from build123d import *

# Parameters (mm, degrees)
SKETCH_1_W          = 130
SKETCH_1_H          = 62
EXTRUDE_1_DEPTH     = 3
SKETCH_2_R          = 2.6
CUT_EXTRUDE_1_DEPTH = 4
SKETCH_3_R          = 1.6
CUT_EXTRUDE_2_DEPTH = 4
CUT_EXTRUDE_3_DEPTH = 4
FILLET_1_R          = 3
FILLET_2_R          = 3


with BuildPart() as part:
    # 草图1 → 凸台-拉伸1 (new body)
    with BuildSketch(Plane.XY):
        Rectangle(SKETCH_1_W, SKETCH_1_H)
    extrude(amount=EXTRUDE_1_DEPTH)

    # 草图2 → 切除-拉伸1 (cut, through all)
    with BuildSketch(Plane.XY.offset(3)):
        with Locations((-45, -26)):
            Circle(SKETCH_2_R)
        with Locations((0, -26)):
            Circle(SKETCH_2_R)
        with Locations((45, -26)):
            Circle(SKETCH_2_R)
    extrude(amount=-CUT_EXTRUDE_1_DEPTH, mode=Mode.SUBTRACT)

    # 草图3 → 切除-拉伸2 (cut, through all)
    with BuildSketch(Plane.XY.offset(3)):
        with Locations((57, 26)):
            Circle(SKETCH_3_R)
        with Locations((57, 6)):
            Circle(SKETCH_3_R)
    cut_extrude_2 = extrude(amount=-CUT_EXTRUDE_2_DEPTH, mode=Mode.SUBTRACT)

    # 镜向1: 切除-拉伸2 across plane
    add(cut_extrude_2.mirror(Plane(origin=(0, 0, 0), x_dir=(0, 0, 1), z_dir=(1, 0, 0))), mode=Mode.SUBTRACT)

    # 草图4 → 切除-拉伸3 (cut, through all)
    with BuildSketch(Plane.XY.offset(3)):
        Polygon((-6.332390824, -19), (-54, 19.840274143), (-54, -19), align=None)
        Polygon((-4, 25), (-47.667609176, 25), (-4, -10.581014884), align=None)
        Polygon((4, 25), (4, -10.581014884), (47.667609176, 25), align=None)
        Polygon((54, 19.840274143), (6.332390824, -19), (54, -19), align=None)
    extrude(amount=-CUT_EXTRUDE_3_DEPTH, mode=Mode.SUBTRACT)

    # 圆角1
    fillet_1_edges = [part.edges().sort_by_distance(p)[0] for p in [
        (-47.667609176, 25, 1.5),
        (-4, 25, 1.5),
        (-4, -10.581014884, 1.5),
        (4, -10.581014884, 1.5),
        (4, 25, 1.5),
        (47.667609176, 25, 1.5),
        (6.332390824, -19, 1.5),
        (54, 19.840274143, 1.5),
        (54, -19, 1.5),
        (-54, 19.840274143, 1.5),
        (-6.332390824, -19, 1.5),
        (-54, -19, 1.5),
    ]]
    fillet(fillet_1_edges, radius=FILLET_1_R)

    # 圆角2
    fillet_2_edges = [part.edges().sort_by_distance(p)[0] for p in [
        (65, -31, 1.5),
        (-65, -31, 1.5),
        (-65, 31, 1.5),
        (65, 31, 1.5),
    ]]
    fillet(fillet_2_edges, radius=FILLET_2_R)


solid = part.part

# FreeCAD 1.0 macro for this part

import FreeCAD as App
import Part
import Sketcher


def edges_at(feature, points):
    """Names of the edges that pass closest to the given points."""
    edges = feature.Shape.Edges
    near = lambda p: min(range(len(edges)), key=lambda i: edges[i].distToShape(Part.Vertex(*p))[0])
    return sorted({f"Edge{near(p) + 1}" for p in points})

doc = App.newDocument("Part")
params = doc.addObject("Spreadsheet::Sheet", "Params")
for row, (alias, value) in enumerate([
    ("sketch1_width", "130 mm"),
    ("sketch1_height", "62 mm"),
    ("pad1_length", "3 mm"),
    ("sketch2_diameter", "5.2 mm"),
    ("sketch3_diameter", "3.2 mm"),
    ("fillet_radius", "3 mm"),
    ("fillet2_radius", "3 mm"),
], start=1):
    params.set(f"A{row}", alias)
    params.set(f"B{row}", "=" + value)
    params.setAlias(f"B{row}", alias)

body = doc.addObject("PartDesign::Body", "Body")

sketch1 = body.newObject("Sketcher::SketchObject", "Sketch")
sketch1.AttachmentSupport = (doc.getObject("XY_Plane"), [""])
sketch1.MapMode = "FlatFace"
sketch1.addGeometry(Part.LineSegment(App.Vector(-65, 31, 0), App.Vector(-65, -31, 0)), False)
sketch1.addGeometry(Part.LineSegment(App.Vector(-65, -31, 0), App.Vector(65, -31, 0)), False)
sketch1.addGeometry(Part.LineSegment(App.Vector(65, -31, 0), App.Vector(65, 31, 0)), False)
sketch1.addGeometry(Part.LineSegment(App.Vector(65, 31, 0), App.Vector(-65, 31, 0)), False)
sketch1.addConstraint(Sketcher.Constraint("Coincident", 0, 2, 1, 1))
sketch1.addConstraint(Sketcher.Constraint("Coincident", 1, 2, 2, 1))
sketch1.addConstraint(Sketcher.Constraint("Coincident", 2, 2, 3, 1))
sketch1.addConstraint(Sketcher.Constraint("Coincident", 3, 2, 0, 1))
sketch1.addConstraint(Sketcher.Constraint("Vertical", 0))
sketch1.addConstraint(Sketcher.Constraint("Horizontal", 1))
sketch1.addConstraint(Sketcher.Constraint("Vertical", 2))
sketch1.addConstraint(Sketcher.Constraint("Horizontal", 3))
sketch1.addConstraint(Sketcher.Constraint("Symmetric", 0, 2, 2, 2, -1, 1))
sketch1.addConstraint(Sketcher.Constraint("DistanceX", 1, 1, 1, 2, 130.0))
sketch1.addConstraint(Sketcher.Constraint("DistanceY", 0, 2, 0, 1, 62.0))
sketch1.setExpression("Constraints[9]", "Params.sketch1_width")
sketch1.setExpression("Constraints[10]", "Params.sketch1_height")
pad1 = body.newObject("PartDesign::Pad", "Pad")
pad1.Profile = sketch1
pad1.setExpression("Length", "Params.pad1_length")

sketch2 = body.newObject("Sketcher::SketchObject", "Sketch001")
sketch2.AttachmentSupport = (doc.getObject("XY_Plane"), [""])
sketch2.MapMode = "FlatFace"
sketch2.AttachmentOffset = App.Placement(App.Vector(0, 0, 3), App.Rotation())
sketch2.addGeometry(Part.Circle(App.Vector(-45, -26, 0), App.Vector(0, 0, 1), 2.6), False)
sketch2.addGeometry(Part.Circle(App.Vector(0, -26, 0), App.Vector(0, 0, 1), 2.6), False)
sketch2.addGeometry(Part.Circle(App.Vector(45, -26, 0), App.Vector(0, 0, 1), 2.6), False)
sketch2.addConstraint(Sketcher.Constraint("Equal", 0, 1))
sketch2.addConstraint(Sketcher.Constraint("Equal", 1, 2))
sketch2.addConstraint(Sketcher.Constraint("Symmetric", 0, 3, 2, 3, -2))
sketch2.addConstraint(Sketcher.Constraint("PointOnObject", 1, 3, -2))
sketch2.addConstraint(Sketcher.Constraint("Horizontal", 0, 3, 1, 3))
sketch2.addConstraint(Sketcher.Constraint("Diameter", 0, 5.2))
sketch2.addConstraint(Sketcher.Constraint("DistanceX", 0, 3, -1, 1, 45.0))
sketch2.addConstraint(Sketcher.Constraint("DistanceY", 0, 3, -1, 1, 26.0))
sketch2.setExpression("Constraints[5]", "Params.sketch2_diameter")
pocket1 = body.newObject("PartDesign::Pocket", "Pocket")
pocket1.Profile = sketch2
pocket1.Type = "ThroughAll"

sketch3 = body.newObject("Sketcher::SketchObject", "Sketch002")
sketch3.AttachmentSupport = (doc.getObject("XY_Plane"), [""])
sketch3.MapMode = "FlatFace"
sketch3.AttachmentOffset = App.Placement(App.Vector(0, 0, 3), App.Rotation())
sketch3.addGeometry(Part.Circle(App.Vector(57, 26, 0), App.Vector(0, 0, 1), 1.6), False)
sketch3.addGeometry(Part.Circle(App.Vector(57, 6, 0), App.Vector(0, 0, 1), 1.6), False)
sketch3.addConstraint(Sketcher.Constraint("Equal", 0, 1))
sketch3.addConstraint(Sketcher.Constraint("Vertical", 0, 3, 1, 3))
sketch3.addConstraint(Sketcher.Constraint("Diameter", 0, 3.2))
sketch3.addConstraint(Sketcher.Constraint("DistanceX", -1, 1, 0, 3, 57.0))
sketch3.addConstraint(Sketcher.Constraint("DistanceY", -1, 1, 0, 3, 26.0))
sketch3.addConstraint(Sketcher.Constraint("DistanceY", -1, 1, 1, 3, 6.0))
sketch3.setExpression("Constraints[2]", "Params.sketch3_diameter")
pocket2 = body.newObject("PartDesign::Pocket", "Pocket001")
pocket2.Profile = sketch3
pocket2.Type = "ThroughAll"
doc.recompute()

mirrored = body.newObject("PartDesign::Mirrored", "Mirrored")
mirrored.Originals = [pocket2]
mirrored.MirrorPlane = (doc.getObject("YZ_Plane"), [""])
body.Tip = mirrored

sketch4 = body.newObject("Sketcher::SketchObject", "Sketch003")
sketch4.AttachmentSupport = (doc.getObject("XY_Plane"), [""])
sketch4.MapMode = "FlatFace"
sketch4.AttachmentOffset = App.Placement(App.Vector(0, 0, 3), App.Rotation())
sketch4.addGeometry(Part.LineSegment(App.Vector(-6, -19, 0), App.Vector(-54, 20, 0)), False)
sketch4.addGeometry(Part.LineSegment(App.Vector(-54, 20, 0), App.Vector(-54, -19, 0)), False)
sketch4.addGeometry(Part.LineSegment(App.Vector(-54, -19, 0), App.Vector(-6, -19, 0)), False)
sketch4.addGeometry(Part.LineSegment(App.Vector(-4, 25, 0), App.Vector(-48, 25, 0)), False)
sketch4.addGeometry(Part.LineSegment(App.Vector(-48, 25, 0), App.Vector(-4, -11, 0)), False)
sketch4.addGeometry(Part.LineSegment(App.Vector(-4, -11, 0), App.Vector(-4, 25, 0)), False)
sketch4.addGeometry(Part.LineSegment(App.Vector(4, 25, 0), App.Vector(4, -11, 0)), False)
sketch4.addGeometry(Part.LineSegment(App.Vector(4, -11, 0), App.Vector(48, 25, 0)), False)
sketch4.addGeometry(Part.LineSegment(App.Vector(48, 25, 0), App.Vector(4, 25, 0)), False)
sketch4.addGeometry(Part.LineSegment(App.Vector(54, 20, 0), App.Vector(6, -19, 0)), False)
sketch4.addGeometry(Part.LineSegment(App.Vector(6, -19, 0), App.Vector(54, -19, 0)), False)
sketch4.addGeometry(Part.LineSegment(App.Vector(54, -19, 0), App.Vector(54, 20, 0)), False)
sketch4.addConstraint(Sketcher.Constraint("Coincident", 0, 2, 1, 1))
sketch4.addConstraint(Sketcher.Constraint("Coincident", 1, 2, 2, 1))
sketch4.addConstraint(Sketcher.Constraint("Coincident", 2, 2, 0, 1))
sketch4.addConstraint(Sketcher.Constraint("Coincident", 3, 2, 4, 1))
sketch4.addConstraint(Sketcher.Constraint("Coincident", 4, 2, 5, 1))
sketch4.addConstraint(Sketcher.Constraint("Coincident", 5, 2, 3, 1))
sketch4.addConstraint(Sketcher.Constraint("Coincident", 6, 2, 7, 1))
sketch4.addConstraint(Sketcher.Constraint("Coincident", 7, 2, 8, 1))
sketch4.addConstraint(Sketcher.Constraint("Coincident", 8, 2, 6, 1))
sketch4.addConstraint(Sketcher.Constraint("Coincident", 9, 2, 10, 1))
sketch4.addConstraint(Sketcher.Constraint("Coincident", 10, 2, 11, 1))
sketch4.addConstraint(Sketcher.Constraint("Coincident", 11, 2, 9, 1))
sketch4.addConstraint(Sketcher.Constraint("Vertical", 1))
sketch4.addConstraint(Sketcher.Constraint("Horizontal", 2))
sketch4.addConstraint(Sketcher.Constraint("Horizontal", 3))
sketch4.addConstraint(Sketcher.Constraint("Vertical", 5))
sketch4.addConstraint(Sketcher.Constraint("Vertical", 6))
sketch4.addConstraint(Sketcher.Constraint("Horizontal", 8))
sketch4.addConstraint(Sketcher.Constraint("Horizontal", 10))
sketch4.addConstraint(Sketcher.Constraint("Vertical", 11))
sketch4.addConstraint(Sketcher.Constraint("Symmetric", 4, 2, 6, 2, -2))
sketch4.addConstraint(Sketcher.Constraint("Symmetric", 3, 2, 7, 2, -2))
sketch4.addConstraint(Sketcher.Constraint("Symmetric", 2, 2, 9, 2, -2))
sketch4.addConstraint(Sketcher.Constraint("Symmetric", 0, 2, 11, 2, -2))
sketch4.addConstraint(Sketcher.Constraint("Parallel", 0, 4))
sketch4.addConstraint(Sketcher.Constraint("DistanceX", 0, 2, -1, 1, 54.0))
sketch4.addConstraint(Sketcher.Constraint("DistanceY", 1, 2, -1, 1, 19.0))
sketch4.addConstraint(Sketcher.Constraint("DistanceY", -1, 1, 3, 2, 25.0))
sketch4.addConstraint(Sketcher.Constraint("DistanceX", 4, 2, -1, 1, 4.0))
sketch4.addConstraint(Sketcher.Constraint("DistanceX", 2, 2, 7, 2, 54.0))
sketch4.addConstraint(Sketcher.Constraint("DistanceX", 2, 1, 2, 2, 47.667609))
sketch4.addConstraint(Sketcher.Constraint("Distance", 0, 61.487949))
pocket3 = body.newObject("PartDesign::Pocket", "Pocket002")
pocket3.Profile = sketch4
pocket3.Type = "ThroughAll"
doc.recompute()

fillet = body.newObject("PartDesign::Fillet", "Fillet")
fillet.Base = (pocket3, edges_at(pocket3, [
    (-47.668, 25, 1.5),
    (-4, 25, 1.5),
    (-4, -10.581, 1.5),
    (4, -10.581, 1.5),
    (4, 25, 1.5),
    (47.668, 25, 1.5),
    (6.332, -19, 1.5),
    (54, 19.84, 1.5),
    (54, -19, 1.5),
    (-54, 19.84, 1.5),
    (-6.332, -19, 1.5),
    (-54, -19, 1.5),
]))
fillet.setExpression("Radius", "Params.fillet_radius")
doc.recompute()

fillet2 = body.newObject("PartDesign::Fillet", "Fillet001")
fillet2.Base = (fillet, edges_at(fillet, [
    (65, -31, 1.5),
    (-65, -31, 1.5),
    (-65, 31, 1.5),
    (65, 31, 1.5),
]))
fillet2.setExpression("Radius", "Params.fillet2_radius")

doc.recompute()
